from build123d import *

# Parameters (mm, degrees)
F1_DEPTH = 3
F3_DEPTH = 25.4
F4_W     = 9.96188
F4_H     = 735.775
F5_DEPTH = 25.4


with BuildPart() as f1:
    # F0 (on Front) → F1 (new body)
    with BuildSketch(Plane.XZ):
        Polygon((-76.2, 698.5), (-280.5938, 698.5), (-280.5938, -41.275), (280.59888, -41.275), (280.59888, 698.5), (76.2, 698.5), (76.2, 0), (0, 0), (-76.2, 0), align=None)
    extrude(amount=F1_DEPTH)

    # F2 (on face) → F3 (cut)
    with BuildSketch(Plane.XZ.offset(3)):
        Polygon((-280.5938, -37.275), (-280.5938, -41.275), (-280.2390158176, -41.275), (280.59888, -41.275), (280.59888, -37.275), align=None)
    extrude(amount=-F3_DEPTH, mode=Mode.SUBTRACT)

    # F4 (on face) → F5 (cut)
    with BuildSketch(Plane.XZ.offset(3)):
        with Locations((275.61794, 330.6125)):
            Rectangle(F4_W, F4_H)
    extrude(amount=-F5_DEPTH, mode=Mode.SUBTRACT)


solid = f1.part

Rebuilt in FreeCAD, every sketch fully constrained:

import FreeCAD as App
import Part
import Sketcher
from FreeCAD import Vector
Q = App.Units.Quantity

doc = App.newDocument("Part")
params = doc.addObject("Spreadsheet::Sheet", "Params")
for row, (alias, value) in enumerate([
    ("sketch1_width", "6 in"),
    ("sketch1_height", "27.5 in"),
    ("sketch1_width2", "8.047 in"),
    ("sketch1_height2", "29.125 in"),
    ("pad1_length", "3 mm"),
    ("pocket1_length", "1 in"),
    ("pocket2_length", "1 in"),
], start=1):
    params.set(f"A{row}", alias)
    params.set(f"B{row}", "=" + value)
    params.setAlias(f"B{row}", alias)

body = doc.addObject("PartDesign::Body", "Body")

# Sketch on XZ plane
sketch1 = body.newObject("Sketcher::SketchObject", "Sketch")
sketch1.AttachmentSupport = (doc.getObject("XZ_Plane"), [""])
sketch1.MapMode = "FlatFace"
sketch1.addGeometry([
    Part.LineSegment(Vector(-76, 698, 0), Vector(-281, 698, 0)),  # 0
    Part.LineSegment(Vector(-281, 698, 0), Vector(-281, -41, 0)),  # 1
    Part.LineSegment(Vector(-281, -41, 0), Vector(281, -41, 0)),  # 2
    Part.LineSegment(Vector(281, -41, 0), Vector(281, 698, 0)),  # 3
    Part.LineSegment(Vector(281, 698, 0), Vector(76, 698, 0)),  # 4
    Part.LineSegment(Vector(76, 698, 0), Vector(76, 0, 0)),  # 5
    Part.LineSegment(Vector(76, 0, 0), Vector(-76, 0, 0)),  # 6
    Part.LineSegment(Vector(-76, 0, 0), Vector(-76, 698, 0)),  # 7
], False)
sketch1.addConstraint([
    Sketcher.Constraint("Coincident", 0, 2, 1, 1),
    Sketcher.Constraint("Coincident", 1, 2, 2, 1),
    Sketcher.Constraint("Coincident", 2, 2, 3, 1),
    Sketcher.Constraint("Coincident", 3, 2, 4, 1),
    Sketcher.Constraint("Coincident", 4, 2, 5, 1),
    Sketcher.Constraint("Coincident", 5, 2, 6, 1),
    Sketcher.Constraint("Coincident", 6, 2, 7, 1),
    Sketcher.Constraint("Coincident", 7, 2, 0, 1),
    Sketcher.Constraint("Horizontal", 0),
    Sketcher.Constraint("Vertical", 1),
    Sketcher.Constraint("Horizontal", 2),
    Sketcher.Constraint("Vertical", 3),
    Sketcher.Constraint("Horizontal", 4),
    Sketcher.Constraint("Vertical", 5),
    Sketcher.Constraint("Horizontal", 6),
    Sketcher.Constraint("Vertical", 7),
    Sketcher.Constraint("Symmetric", 5, 2, 6, 2, -1, 1),
    Sketcher.Constraint("Horizontal", 0, 2, 3, 2),
    Sketcher.Constraint("DistanceX", 6, 2, 6, 1, Q("6 in")),
    Sketcher.Constraint("DistanceY", 5, 2, 5, 1, Q("27.5 in")),
    Sketcher.Constraint("DistanceX", 0, 2, 0, 1, Q("8.047 in")),
    Sketcher.Constraint("DistanceY", 1, 2, 1, 1, Q("29.125 in")),
    Sketcher.Constraint("DistanceX", 2, 1, 2, 2, Q("22.0942 in")),
])
sketch1.setExpression("Constraints[18]", "Params.sketch1_width")
sketch1.setExpression("Constraints[19]", "Params.sketch1_height")
sketch1.setExpression("Constraints[20]", "Params.sketch1_width2")
sketch1.setExpression("Constraints[21]", "Params.sketch1_height2")
pad1 = body.newObject("PartDesign::Pad", "Pad")
pad1.Profile = sketch1
pad1.setExpression("Length", "Params.pad1_length")

# Sketch on XZ plane
sketch2 = body.newObject("Sketcher::SketchObject", "Sketch001")
sketch2.AttachmentSupport = (doc.getObject("XZ_Plane"), [""])
sketch2.MapMode = "FlatFace"
sketch2.AttachmentOffset = App.Placement(Vector(0, 0, 3), App.Rotation())
sketch2.addGeometry([
    Part.LineSegment(Vector(-280.6, -37.3, 0), Vector(-280.6, -41.3, 0)),
    Part.LineSegment(Vector(-280.6, -41.3, 0), Vector(280.6, -41.3, 0)),
    Part.LineSegment(Vector(280.6, -41.3, 0), Vector(280.6, -37.3, 0)),
    Part.LineSegment(Vector(280.6, -37.3, 0), Vector(-280.6, -37.3, 0)),
], False)
sketch2.addConstraint([
    Sketcher.Constraint("Coincident", 0, 2, 1, 1),
    Sketcher.Constraint("Coincident", 1, 2, 2, 1),
    Sketcher.Constraint("Coincident", 2, 2, 3, 1),
    Sketcher.Constraint("Coincident", 3, 2, 0, 1),
    Sketcher.Constraint("Vertical", 0),
    Sketcher.Constraint("Horizontal", 1),
    Sketcher.Constraint("Vertical", 2),
    Sketcher.Constraint("Horizontal", 3),
    Sketcher.Constraint("DistanceX", 1, 1, 1, 2, Q("22.0942 in")),
    Sketcher.Constraint("DistanceX", 0, 2, -1, 1, Q("11.047 in")),
    Sketcher.Constraint("DistanceY", 0, 2, -1, 1, Q("1.625 in")),
    Sketcher.Constraint("DistanceY", 0, 2, 0, 1, 4.0),
])
pocket1 = body.newObject("PartDesign::Pocket", "Pocket")
pocket1.Profile = sketch2
pocket1.setExpression("Length", "Params.pocket1_length")

# Sketch on XZ plane
sketch3 = body.newObject("Sketcher::SketchObject", "Sketch002")
sketch3.AttachmentSupport = (doc.getObject("XZ_Plane"), [""])
sketch3.MapMode = "FlatFace"
sketch3.AttachmentOffset = App.Placement(Vector(0, 0, 3), App.Rotation())
sketch3.addGeometry([
    Part.LineSegment(Vector(271, 698, 0), Vector(271, -37, 0)),
    Part.LineSegment(Vector(271, -37, 0), Vector(281, -37, 0)),
    Part.LineSegment(Vector(281, -37, 0), Vector(281, 698, 0)),
    Part.LineSegment(Vector(281, 698, 0), Vector(271, 698, 0)),
], False)
sketch3.addConstraint([
    Sketcher.Constraint("Coincident", 0, 2, 1, 1),
    Sketcher.Constraint("Coincident", 1, 2, 2, 1),
    Sketcher.Constraint("Coincident", 2, 2, 3, 1),
    Sketcher.Constraint("Coincident", 3, 2, 0, 1),
    Sketcher.Constraint("Vertical", 0),
    Sketcher.Constraint("Horizontal", 1),
    Sketcher.Constraint("Vertical", 2),
    Sketcher.Constraint("Horizontal", 3),
    Sketcher.Constraint("DistanceY", -1, 1, 2, 2, Q("27.5 in")),
    Sketcher.Constraint("DistanceX", 1, 1, 1, 2, Q("0.3922 in")),
    Sketcher.Constraint("DistanceX", -1, 1, 0, 2, Q("10.655 in")),
    Sketcher.Constraint("DistanceY", 0, 2, 0, 1, 735.775),
])
pocket2 = body.newObject("PartDesign::Pocket", "Pocket001")
pocket2.Profile = sketch3
pocket2.setExpression("Length", "Params.pocket2_length")

doc.recompute()
